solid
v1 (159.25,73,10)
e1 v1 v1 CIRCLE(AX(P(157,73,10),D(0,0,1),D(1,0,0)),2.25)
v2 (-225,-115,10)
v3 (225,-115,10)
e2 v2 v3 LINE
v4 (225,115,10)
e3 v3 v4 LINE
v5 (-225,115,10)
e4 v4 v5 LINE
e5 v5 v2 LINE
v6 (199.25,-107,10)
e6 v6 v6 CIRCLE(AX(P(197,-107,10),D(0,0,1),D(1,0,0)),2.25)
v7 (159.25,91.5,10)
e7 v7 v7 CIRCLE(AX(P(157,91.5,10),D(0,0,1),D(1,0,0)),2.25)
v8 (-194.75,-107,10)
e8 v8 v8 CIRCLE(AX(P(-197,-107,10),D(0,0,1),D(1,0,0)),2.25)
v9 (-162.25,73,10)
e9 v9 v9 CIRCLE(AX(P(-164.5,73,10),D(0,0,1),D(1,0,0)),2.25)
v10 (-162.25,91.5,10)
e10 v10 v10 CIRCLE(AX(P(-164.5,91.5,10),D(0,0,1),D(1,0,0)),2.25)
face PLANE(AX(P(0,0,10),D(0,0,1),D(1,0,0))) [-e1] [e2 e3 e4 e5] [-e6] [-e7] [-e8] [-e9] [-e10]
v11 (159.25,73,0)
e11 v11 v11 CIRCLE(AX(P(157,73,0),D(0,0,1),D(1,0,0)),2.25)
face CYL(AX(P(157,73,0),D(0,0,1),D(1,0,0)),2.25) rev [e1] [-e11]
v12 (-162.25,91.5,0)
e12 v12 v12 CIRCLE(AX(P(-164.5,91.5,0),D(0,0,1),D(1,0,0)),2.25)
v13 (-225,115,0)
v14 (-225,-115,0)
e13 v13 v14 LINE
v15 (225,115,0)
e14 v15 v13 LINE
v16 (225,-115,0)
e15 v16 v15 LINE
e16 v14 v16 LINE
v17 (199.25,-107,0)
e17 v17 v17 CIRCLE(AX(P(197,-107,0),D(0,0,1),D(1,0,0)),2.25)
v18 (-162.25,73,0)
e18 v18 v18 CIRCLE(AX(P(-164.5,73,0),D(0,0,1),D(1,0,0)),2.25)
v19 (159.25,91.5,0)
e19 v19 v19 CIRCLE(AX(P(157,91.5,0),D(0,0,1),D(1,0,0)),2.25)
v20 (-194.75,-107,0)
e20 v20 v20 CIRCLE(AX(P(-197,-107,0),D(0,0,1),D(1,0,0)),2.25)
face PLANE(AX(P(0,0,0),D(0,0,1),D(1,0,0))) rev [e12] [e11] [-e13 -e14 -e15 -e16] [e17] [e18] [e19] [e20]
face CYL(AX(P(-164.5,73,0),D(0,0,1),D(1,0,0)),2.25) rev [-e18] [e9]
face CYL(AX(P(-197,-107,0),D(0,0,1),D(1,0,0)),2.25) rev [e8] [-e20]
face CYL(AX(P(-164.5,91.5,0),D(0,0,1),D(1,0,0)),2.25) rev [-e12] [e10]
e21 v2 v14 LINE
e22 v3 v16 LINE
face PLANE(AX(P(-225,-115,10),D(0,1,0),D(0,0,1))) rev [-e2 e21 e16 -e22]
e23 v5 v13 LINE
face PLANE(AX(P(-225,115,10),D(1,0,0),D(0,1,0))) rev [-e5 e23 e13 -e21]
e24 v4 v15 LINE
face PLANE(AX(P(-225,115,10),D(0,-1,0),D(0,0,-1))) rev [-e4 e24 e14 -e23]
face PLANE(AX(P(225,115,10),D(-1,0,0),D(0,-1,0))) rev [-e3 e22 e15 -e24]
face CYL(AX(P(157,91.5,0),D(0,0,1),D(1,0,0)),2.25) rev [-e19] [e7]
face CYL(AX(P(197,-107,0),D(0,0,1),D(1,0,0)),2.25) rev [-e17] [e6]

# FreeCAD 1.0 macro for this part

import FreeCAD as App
import Part
import Sketcher

doc = App.newDocument("Part")
params = doc.addObject("Spreadsheet::Sheet", "Params")
for row, (alias, value) in enumerate([
    ("sketch1_width", "450 mm"),
    ("sketch1_height", "230 mm"),
    ("pad1_length", "10 mm"),
    ("sketch2_diameter", "4.5 mm"),
    ("pocket1_length", "10 mm"),
    ("sketch3_diameter", "4.5 mm"),
    ("pocket2_length", "10 mm"),
], start=1):
    params.set(f"A{row}", alias)
    params.set(f"B{row}", "=" + value)
    params.setAlias(f"B{row}", alias)

body = doc.addObject("PartDesign::Body", "Body")

# Sketch on XY plane
sketch1 = body.newObject("Sketcher::SketchObject", "Sketch")
sketch1.AttachmentSupport = (doc.getObject("XY_Plane"), [""])
sketch1.MapMode = "FlatFace"
sketch1.addGeometry([
    Part.LineSegment(App.Vector(-225, 115, 0), App.Vector(-225, -115, 0)),
    Part.LineSegment(App.Vector(-225, -115, 0), App.Vector(225, -115, 0)),
    Part.LineSegment(App.Vector(225, -115, 0), App.Vector(225, 115, 0)),
    Part.LineSegment(App.Vector(225, 115, 0), App.Vector(-225, 115, 0)),
], False)
sketch1.addConstraint([
    Sketcher.Constraint("Coincident", 0, 2, 1, 1),
    Sketcher.Constraint("Coincident", 1, 2, 2, 1),
    Sketcher.Constraint("Coincident", 2, 2, 3, 1),
    Sketcher.Constraint("Coincident", 3, 2, 0, 1),
    Sketcher.Constraint("Vertical", 0),
    Sketcher.Constraint("Horizontal", 1),
    Sketcher.Constraint("Vertical", 2),
    Sketcher.Constraint("Horizontal", 3),
    Sketcher.Constraint("Symmetric", 0, 2, 2, 2, -1, 1),
    Sketcher.Constraint("DistanceX", 1, 1, 1, 2, 450.0),
    Sketcher.Constraint("DistanceY", 0, 2, 0, 1, 230.0),
])
sketch1.setExpression("Constraints[9]", "Params.sketch1_width")
sketch1.setExpression("Constraints[10]", "Params.sketch1_height")
pad1 = body.newObject("PartDesign::Pad", "Pad")
pad1.Profile = sketch1
pad1.setExpression("Length", "Params.pad1_length")

# Sketch on XY plane
sketch2 = body.newObject("Sketcher::SketchObject", "Sketch001")
sketch2.AttachmentSupport = (doc.getObject("XY_Plane"), [""])
sketch2.MapMode = "FlatFace"
sketch2.AttachmentOffset = App.Placement(App.Vector(0, 0, 10), App.Rotation())
sketch2.addGeometry([
    Part.Circle(App.Vector(-164.5, 91.5, 0), App.Vector(0, 0, 1), 2.2),
    Part.Circle(App.Vector(-164.5, 73, 0), App.Vector(0, 0, 1), 2.2),
    Part.Circle(App.Vector(157, 91.5, 0), App.Vector(0, 0, 1), 2.2),
    Part.Circle(App.Vector(157, 73, 0), App.Vector(0, 0, 1), 2.2),
], False)
sketch2.addConstraint([
    Sketcher.Constraint("Equal", 0, 1),
    Sketcher.Constraint("Equal", 1, 2),
    Sketcher.Constraint("Equal", 2, 3),
    Sketcher.Constraint("Horizontal", 0, 3, 2, 3),
    Sketcher.Constraint("Horizontal", 1, 3, 3, 3),
    Sketcher.Constraint("Vertical", 0, 3, 1, 3),
    Sketcher.Constraint("Vertical", 2, 3, 3, 3),
    Sketcher.Constraint("Diameter", 0, 4.5),
    Sketcher.Constraint("DistanceY", -1, 1, 1, 3, 73.0),
    Sketcher.Constraint("DistanceX", -1, 1, 2, 3, 157.0),
    Sketcher.Constraint("DistanceX", 0, 3, -1, 1, 164.5),
    Sketcher.Constraint("DistanceY", -1, 1, 0, 3, 91.5),
])
sketch2.setExpression("Constraints[7]", "Params.sketch2_diameter")
pocket1 = body.newObject("PartDesign::Pocket", "Pocket")
pocket1.Profile = sketch2
pocket1.setExpression("Length", "Params.pocket1_length")

# Sketch on XY plane
sketch3 = body.newObject("Sketcher::SketchObject", "Sketch002")
sketch3.AttachmentSupport = (doc.getObject("XY_Plane"), [""])
sketch3.MapMode = "FlatFace"
sketch3.AttachmentOffset = App.Placement(App.Vector(0, 0, 10), App.Rotation())
sketch3.addGeometry([
    Part.Circle(App.Vector(-197, -107, 0), App.Vector(0, 0, 1), 2.2),
    Part.Circle(App.Vector(197, -107, 0), App.Vector(0, 0, 1), 2.2),
], False)
sketch3.addConstraint([
    Sketcher.Constraint("Equal", 0, 1),
    Sketcher.Constraint("Symmetric", 0, 3, 1, 3, -2),
    Sketcher.Constraint("Diameter", 0, 4.5),
    Sketcher.Constraint("DistanceX", 0, 3, -1, 1, 197.0),
    Sketcher.Constraint("DistanceY", 0, 3, -1, 1, 107.0),
])
sketch3.setExpression("Constraints[2]", "Params.sketch3_diameter")
pocket2 = body.newObject("PartDesign::Pocket", "Pocket001")
pocket2.Profile = sketch3
pocket2.setExpression("Length", "Params.pocket2_length")

doc.recompute()
